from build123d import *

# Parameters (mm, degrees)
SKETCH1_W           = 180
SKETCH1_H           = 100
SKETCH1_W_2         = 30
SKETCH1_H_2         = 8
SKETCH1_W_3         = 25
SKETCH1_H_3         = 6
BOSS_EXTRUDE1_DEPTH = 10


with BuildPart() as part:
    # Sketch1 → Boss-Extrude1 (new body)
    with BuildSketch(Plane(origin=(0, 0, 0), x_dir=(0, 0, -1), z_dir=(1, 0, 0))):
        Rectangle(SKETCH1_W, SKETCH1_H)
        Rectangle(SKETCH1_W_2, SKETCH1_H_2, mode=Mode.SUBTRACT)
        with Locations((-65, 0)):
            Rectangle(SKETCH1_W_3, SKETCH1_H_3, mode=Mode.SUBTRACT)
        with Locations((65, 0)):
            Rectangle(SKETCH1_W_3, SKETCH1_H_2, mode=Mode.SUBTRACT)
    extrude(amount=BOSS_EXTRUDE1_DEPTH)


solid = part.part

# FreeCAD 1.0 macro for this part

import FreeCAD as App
import Part
import Sketcher


def add_polygon(sketch, points):
    """Adds a closed chain of lines whose ends are joined by coincident constraints."""
    first, n = sketch.GeometryCount, len(points)
    for a, b in zip(points, points[1:] + points[:1]):
        sketch.addGeometry(Part.LineSegment(App.Vector(*a, 0), App.Vector(*b, 0)), False)
    for i in range(n):
        sketch.addConstraint(Sketcher.Constraint("Coincident", first + i, 2, first + (i + 1) % n, 1))

doc = App.newDocument("Part")
body = doc.addObject("PartDesign::Body", "Body")

# Sketch on YZ plane
sketch1 = body.newObject("Sketcher::SketchObject", "Sketch")
sketch1.AttachmentSupport = (doc.getObject("YZ_Plane"), [""])
sketch1.MapMode = "FlatFace"
add_polygon(sketch1, [(50, 90), (-50, 90), (-50, -90), (50, -90)])  # lines 0-3
add_polygon(sketch1, [(-3, 52), (-3, 78), (3, 78), (3, 52)])  # lines 4-7
add_polygon(sketch1, [(-4, -15), (-4, 15), (4, 15), (4, -15)])  # lines 8-11
add_polygon(sketch1, [(-4, -78), (-4, -52), (4, -52), (4, -78)])  # lines 12-15
sketch1.addConstraint([
    Sketcher.Constraint("Horizontal", 0),
    Sketcher.Constraint("Vertical", 1),
    Sketcher.Constraint("Horizontal", 2),
    Sketcher.Constraint("Vertical", 3),
    Sketcher.Constraint("Vertical", 4),
    Sketcher.Constraint("Horizontal", 5),
    Sketcher.Constraint("Vertical", 6),
    Sketcher.Constraint("Horizontal", 7),
    Sketcher.Constraint("Vertical", 8),
    Sketcher.Constraint("Horizontal", 9),
    Sketcher.Constraint("Vertical", 10),
    Sketcher.Constraint("Horizontal", 11),
    Sketcher.Constraint("Vertical", 12),
    Sketcher.Constraint("Horizontal", 13),
    Sketcher.Constraint("Vertical", 14),
    Sketcher.Constraint("Horizontal", 15),
    Sketcher.Constraint("Symmetric", 0, 2, 2, 2, -1, 1),
    Sketcher.Constraint("Symmetric", 8, 2, 10, 2, -1, 1),
    Sketcher.Constraint("Vertical", 11, 2, 12, 2),
    Sketcher.Constraint("Vertical", 10, 2, 13, 2),
    Sketcher.Constraint("Equal", 6, 12),
    Sketcher.Constraint("DistanceX", 0, 2, 0, 1, 100.0),
    Sketcher.Constraint("DistanceX", 5, 1, 5, 2, 6.0),
    Sketcher.Constraint("DistanceX", 9, 1, 9, 2, 8.0),
    Sketcher.Constraint("DistanceY", 1, 2, 1, 1, 180.0),
    Sketcher.Constraint("DistanceY", 4, 1, 4, 2, 25.0),
    Sketcher.Constraint("DistanceY", 8, 1, 8, 2, 30.0),
    Sketcher.Constraint("DistanceX", 4, 2, -1, 1, 3.0),
    Sketcher.Constraint("DistanceY", -1, 1, 4, 2, 77.5),
    Sketcher.Constraint("DistanceY", 12, 2, -1, 1, 52.5),
])
pad1 = body.newObject("PartDesign::Pad", "Pad")
pad1.Profile = sketch1
pad1.Length = 10

doc.recompute()
